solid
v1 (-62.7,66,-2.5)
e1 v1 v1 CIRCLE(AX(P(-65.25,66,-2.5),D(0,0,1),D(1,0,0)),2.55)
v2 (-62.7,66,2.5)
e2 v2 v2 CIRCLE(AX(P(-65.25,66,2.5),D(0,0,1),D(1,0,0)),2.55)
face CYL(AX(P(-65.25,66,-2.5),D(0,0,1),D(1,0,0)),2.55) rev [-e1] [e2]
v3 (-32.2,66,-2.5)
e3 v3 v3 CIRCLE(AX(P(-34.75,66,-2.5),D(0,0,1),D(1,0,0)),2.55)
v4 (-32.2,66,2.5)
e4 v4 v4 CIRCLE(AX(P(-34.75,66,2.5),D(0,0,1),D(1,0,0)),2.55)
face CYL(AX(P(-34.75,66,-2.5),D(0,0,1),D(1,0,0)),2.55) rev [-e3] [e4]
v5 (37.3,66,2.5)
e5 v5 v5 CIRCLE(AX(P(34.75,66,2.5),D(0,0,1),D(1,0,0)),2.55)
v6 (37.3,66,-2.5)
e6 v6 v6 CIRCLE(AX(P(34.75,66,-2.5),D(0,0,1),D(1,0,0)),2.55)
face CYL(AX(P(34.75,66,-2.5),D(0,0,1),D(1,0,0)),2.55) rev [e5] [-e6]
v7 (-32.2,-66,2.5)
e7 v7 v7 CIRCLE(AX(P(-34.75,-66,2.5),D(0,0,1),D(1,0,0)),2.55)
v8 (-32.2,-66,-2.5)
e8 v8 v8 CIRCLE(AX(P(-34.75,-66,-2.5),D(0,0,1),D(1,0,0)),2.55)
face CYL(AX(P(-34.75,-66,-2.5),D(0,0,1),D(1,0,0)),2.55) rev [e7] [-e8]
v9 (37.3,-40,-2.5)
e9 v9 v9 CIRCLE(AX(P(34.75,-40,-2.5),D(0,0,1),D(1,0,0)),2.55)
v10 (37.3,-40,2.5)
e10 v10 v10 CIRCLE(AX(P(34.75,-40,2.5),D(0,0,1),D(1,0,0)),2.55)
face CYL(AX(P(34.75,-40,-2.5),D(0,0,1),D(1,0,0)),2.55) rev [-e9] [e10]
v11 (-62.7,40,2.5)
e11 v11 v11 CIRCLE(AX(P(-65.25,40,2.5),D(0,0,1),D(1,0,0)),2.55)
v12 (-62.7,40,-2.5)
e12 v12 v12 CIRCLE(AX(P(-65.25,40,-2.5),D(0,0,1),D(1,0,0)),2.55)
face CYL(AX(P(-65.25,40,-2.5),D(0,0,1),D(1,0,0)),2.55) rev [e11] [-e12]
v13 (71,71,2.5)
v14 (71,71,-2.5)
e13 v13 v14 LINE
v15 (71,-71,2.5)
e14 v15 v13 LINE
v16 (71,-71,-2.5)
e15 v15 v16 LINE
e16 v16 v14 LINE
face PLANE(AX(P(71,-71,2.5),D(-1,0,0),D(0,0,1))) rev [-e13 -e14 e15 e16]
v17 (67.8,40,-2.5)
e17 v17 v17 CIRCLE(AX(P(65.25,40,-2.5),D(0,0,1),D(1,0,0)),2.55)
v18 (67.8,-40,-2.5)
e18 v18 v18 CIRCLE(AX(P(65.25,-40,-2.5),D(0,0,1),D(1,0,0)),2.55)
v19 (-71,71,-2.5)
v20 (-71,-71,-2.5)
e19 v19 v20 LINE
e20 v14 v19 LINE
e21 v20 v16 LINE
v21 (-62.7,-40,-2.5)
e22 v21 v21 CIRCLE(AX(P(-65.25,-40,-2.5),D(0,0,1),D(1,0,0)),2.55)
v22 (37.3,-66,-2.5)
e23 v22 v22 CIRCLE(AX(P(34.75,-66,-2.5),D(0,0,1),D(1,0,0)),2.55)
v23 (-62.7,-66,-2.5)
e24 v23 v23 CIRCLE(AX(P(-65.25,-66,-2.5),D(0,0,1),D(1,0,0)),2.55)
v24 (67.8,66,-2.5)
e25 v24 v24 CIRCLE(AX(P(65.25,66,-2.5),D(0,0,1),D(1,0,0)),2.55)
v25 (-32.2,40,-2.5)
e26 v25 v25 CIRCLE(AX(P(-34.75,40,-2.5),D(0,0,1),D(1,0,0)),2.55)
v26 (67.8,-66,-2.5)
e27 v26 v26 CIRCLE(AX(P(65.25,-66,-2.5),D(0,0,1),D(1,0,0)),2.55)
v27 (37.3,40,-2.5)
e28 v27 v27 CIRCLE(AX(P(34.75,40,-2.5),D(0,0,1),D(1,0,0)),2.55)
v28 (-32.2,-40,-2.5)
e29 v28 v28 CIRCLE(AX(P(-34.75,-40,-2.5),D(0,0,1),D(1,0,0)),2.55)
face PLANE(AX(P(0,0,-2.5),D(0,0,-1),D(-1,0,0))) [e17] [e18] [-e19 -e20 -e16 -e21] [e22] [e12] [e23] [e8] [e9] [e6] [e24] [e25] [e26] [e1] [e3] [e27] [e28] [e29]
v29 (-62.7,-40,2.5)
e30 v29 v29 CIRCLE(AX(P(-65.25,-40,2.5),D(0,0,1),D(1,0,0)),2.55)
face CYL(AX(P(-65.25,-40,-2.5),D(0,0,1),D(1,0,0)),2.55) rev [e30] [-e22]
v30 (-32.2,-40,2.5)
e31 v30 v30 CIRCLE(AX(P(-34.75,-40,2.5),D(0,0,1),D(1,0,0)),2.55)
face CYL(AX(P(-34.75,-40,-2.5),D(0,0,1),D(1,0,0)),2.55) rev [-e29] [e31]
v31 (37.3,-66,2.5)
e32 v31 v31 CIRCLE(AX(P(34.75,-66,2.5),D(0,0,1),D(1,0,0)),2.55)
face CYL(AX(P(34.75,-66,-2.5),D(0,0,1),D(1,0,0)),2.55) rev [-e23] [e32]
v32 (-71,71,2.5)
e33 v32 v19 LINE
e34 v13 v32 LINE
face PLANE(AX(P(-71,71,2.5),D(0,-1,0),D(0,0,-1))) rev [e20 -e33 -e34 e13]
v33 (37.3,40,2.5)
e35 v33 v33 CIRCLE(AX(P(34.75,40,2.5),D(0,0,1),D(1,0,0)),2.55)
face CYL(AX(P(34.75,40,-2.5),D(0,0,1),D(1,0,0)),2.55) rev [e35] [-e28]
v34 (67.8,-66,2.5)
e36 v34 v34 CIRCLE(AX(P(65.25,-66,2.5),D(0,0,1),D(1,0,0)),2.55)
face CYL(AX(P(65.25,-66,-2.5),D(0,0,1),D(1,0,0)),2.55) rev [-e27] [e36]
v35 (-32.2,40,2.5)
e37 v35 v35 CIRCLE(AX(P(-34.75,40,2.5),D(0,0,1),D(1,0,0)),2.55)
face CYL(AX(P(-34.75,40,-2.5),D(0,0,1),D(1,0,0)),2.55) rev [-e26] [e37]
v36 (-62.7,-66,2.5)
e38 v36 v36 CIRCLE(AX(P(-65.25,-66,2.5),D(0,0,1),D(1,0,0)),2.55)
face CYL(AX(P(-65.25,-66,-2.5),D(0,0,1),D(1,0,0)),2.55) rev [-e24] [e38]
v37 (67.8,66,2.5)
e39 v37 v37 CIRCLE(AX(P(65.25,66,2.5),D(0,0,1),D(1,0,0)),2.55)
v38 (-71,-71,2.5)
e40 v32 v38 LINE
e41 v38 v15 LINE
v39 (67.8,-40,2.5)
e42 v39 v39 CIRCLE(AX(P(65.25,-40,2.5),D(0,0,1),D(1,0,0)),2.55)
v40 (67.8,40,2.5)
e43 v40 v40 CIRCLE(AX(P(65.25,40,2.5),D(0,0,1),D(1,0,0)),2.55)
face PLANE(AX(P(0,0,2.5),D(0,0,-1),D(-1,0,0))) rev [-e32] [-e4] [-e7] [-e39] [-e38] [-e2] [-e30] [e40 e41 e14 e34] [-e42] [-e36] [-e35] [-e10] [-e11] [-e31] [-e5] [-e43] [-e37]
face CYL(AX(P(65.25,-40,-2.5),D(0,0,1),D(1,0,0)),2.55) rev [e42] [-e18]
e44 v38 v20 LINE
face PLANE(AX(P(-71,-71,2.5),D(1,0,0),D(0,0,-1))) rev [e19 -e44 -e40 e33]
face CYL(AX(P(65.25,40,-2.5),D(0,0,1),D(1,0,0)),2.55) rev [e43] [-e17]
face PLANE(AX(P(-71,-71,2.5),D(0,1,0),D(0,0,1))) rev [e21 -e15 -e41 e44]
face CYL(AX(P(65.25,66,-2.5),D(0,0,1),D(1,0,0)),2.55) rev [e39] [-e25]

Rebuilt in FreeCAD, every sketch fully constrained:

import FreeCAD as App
import Part
import Sketcher
from FreeCAD import Vector
Q = App.Units.Quantity


def add_polygon(sketch, points):
    """Adds a closed chain of lines whose ends are joined by coincident constraints."""
    first, n = sketch.GeometryCount, len(points)
    for a, b in zip(points, points[1:] + points[:1]):
        sketch.addGeometry(Part.LineSegment(App.Vector(*a, 0), App.Vector(*b, 0)), False)
    for i in range(n):
        sketch.addConstraint(Sketcher.Constraint("Coincident", first + i, 2, first + (i + 1) % n, 1))

doc = App.newDocument("Part")
body = doc.addObject("PartDesign::Body", "Body")

sketch1 = doc.addObject("Sketcher::SketchObject", "Sketch")
body.addObject(sketch1)
sketch1.AttachmentSupport = (doc.XY_Plane, [""])
sketch1.MapMode = "FlatFace"
add_polygon(sketch1, [(-71, 71), (-71, -71), (71, -71), (71, 71)])
sketch1.addConstraint(Sketcher.Constraint("Vertical", 0))
sketch1.addConstraint(Sketcher.Constraint("Horizontal", 1))
sketch1.addConstraint(Sketcher.Constraint("Vertical", 2))
sketch1.addConstraint(Sketcher.Constraint("Horizontal", 3))
sketch1.addConstraint(Sketcher.Constraint("Symmetric", 0, 2, 2, 2, -1, 1))
sketch1.addConstraint(Sketcher.Constraint("Equal", 3, 0))
sketch1.addConstraint(Sketcher.Constraint("DistanceX", 1, 1, 1, 2, Q("142 mm")))
pad1 = doc.addObject("PartDesign::Pad", "Pad")
body.addObject(pad1)
pad1.Profile = sketch1
pad1.Length = 5
pad1.Midplane = True

sketch2 = doc.addObject("Sketcher::SketchObject", "Sketch001")
body.addObject(sketch2)
sketch2.AttachmentSupport = (doc.XY_Plane, [""])
sketch2.MapMode = "FlatFace"
sketch2.AttachmentOffset = App.Placement(Vector(0, 0, 2.5), App.Rotation())
sketch2.addGeometry(Part.Circle(Vector(-65.2, 66, 0), Vector(0, 0, 1), 2.5), False)
sketch2.addGeometry(Part.Circle(Vector(-34.8, 66, 0), Vector(0, 0, 1), 2.5), False)
sketch2.addGeometry(Part.Circle(Vector(-34.8, 40, 0), Vector(0, 0, 1), 2.5), False)
sketch2.addGeometry(Part.Circle(Vector(-65.2, 40, 0), Vector(0, 0, 1), 2.5), False)
sketch2.addGeometry(Part.Circle(Vector(65.2, 66, 0), Vector(0, 0, 1), 2.5), False)
sketch2.addGeometry(Part.Circle(Vector(65.2, 40, 0), Vector(0, 0, 1), 2.5), False)
sketch2.addGeometry(Part.Circle(Vector(34.8, 40, 0), Vector(0, 0, 1), 2.5), False)
sketch2.addGeometry(Part.Circle(Vector(34.8, 66, 0), Vector(0, 0, 1), 2.5), False)
sketch2.addGeometry(Part.Circle(Vector(-65.2, -40, 0), Vector(0, 0, 1), 2.5), False)
sketch2.addGeometry(Part.Circle(Vector(-34.8, -40, 0), Vector(0, 0, 1), 2.5), False)
sketch2.addGeometry(Part.Circle(Vector(-34.8, -66, 0), Vector(0, 0, 1), 2.5), False)
sketch2.addGeometry(Part.Circle(Vector(-65.2, -66, 0), Vector(0, 0, 1), 2.5), False)
sketch2.addGeometry(Part.Circle(Vector(34.8, -40, 0), Vector(0, 0, 1), 2.5), False)
sketch2.addGeometry(Part.Circle(Vector(65.2, -40, 0), Vector(0, 0, 1), 2.5), False)
sketch2.addGeometry(Part.Circle(Vector(65.2, -66, 0), Vector(0, 0, 1), 2.5), False)
sketch2.addGeometry(Part.Circle(Vector(34.8, -66, 0), Vector(0, 0, 1), 2.5), False)
sketch2.addConstraint(Sketcher.Constraint("Equal", 0, 1))
sketch2.addConstraint(Sketcher.Constraint("Equal", 1, 2))
sketch2.addConstraint(Sketcher.Constraint("Equal", 2, 3))
sketch2.addConstraint(Sketcher.Constraint("Equal", 3, 4))
sketch2.addConstraint(Sketcher.Constraint("Equal", 4, 5))
sketch2.addConstraint(Sketcher.Constraint("Equal", 5, 6))
sketch2.addConstraint(Sketcher.Constraint("Equal", 6, 7))
sketch2.addConstraint(Sketcher.Constraint("Equal", 7, 8))
sketch2.addConstraint(Sketcher.Constraint("Equal", 8, 9))
sketch2.addConstraint(Sketcher.Constraint("Equal", 9, 10))
sketch2.addConstraint(Sketcher.Constraint("Equal", 10, 11))
sketch2.addConstraint(Sketcher.Constraint("Equal", 11, 12))
sketch2.addConstraint(Sketcher.Constraint("Equal", 12, 13))
sketch2.addConstraint(Sketcher.Constraint("Equal", 13, 14))
sketch2.addConstraint(Sketcher.Constraint("Equal", 14, 15))
sketch2.addConstraint(Sketcher.Constraint("Symmetric", 5, 3, 8, 3, -1, 1))
sketch2.addConstraint(Sketcher.Constraint("Symmetric", 6, 3, 9, 3, -1, 1))
sketch2.addConstraint(Sketcher.Constraint("Symmetric", 7, 3, 10, 3, -1, 1))
sketch2.addConstraint(Sketcher.Constraint("Symmetric", 4, 3, 11, 3, -1, 1))
sketch2.addConstraint(Sketcher.Constraint("Symmetric", 2, 3, 12, 3, -1, 1))
sketch2.addConstraint(Sketcher.Constraint("Symmetric", 3, 3, 13, 3, -1, 1))
sketch2.addConstraint(Sketcher.Constraint("Symmetric", 0, 3, 14, 3, -1, 1))
sketch2.addConstraint(Sketcher.Constraint("Symmetric", 1, 3, 15, 3, -1, 1))
sketch2.addConstraint(Sketcher.Constraint("Symmetric", 0, 3, 4, 3, -2))
sketch2.addConstraint(Sketcher.Constraint("Symmetric", 3, 3, 5, 3, -2))
sketch2.addConstraint(Sketcher.Constraint("Symmetric", 2, 3, 6, 3, -2))
sketch2.addConstraint(Sketcher.Constraint("Symmetric", 1, 3, 7, 3, -2))
sketch2.addConstraint(Sketcher.Constraint("Horizontal", 0, 3, 1, 3))
sketch2.addConstraint(Sketcher.Constraint("Horizontal", 2, 3, 3, 3))
sketch2.addConstraint(Sketcher.Constraint("Vertical", 1, 3, 2, 3))
sketch2.addConstraint(Sketcher.Constraint("Vertical", 0, 3, 3, 3))
sketch2.addConstraint(Sketcher.Constraint("Diameter", 0, Q("5.1 mm")))
sketch2.addConstraint(Sketcher.Constraint("DistanceY", -1, 1, 0, 3, Q("66 mm")))
sketch2.addConstraint(Sketcher.Constraint("DistanceY", -1, 1, 2, 3, Q("40 mm")))
sketch2.addConstraint(Sketcher.Constraint("DistanceX", 1, 3, 4, 3, Q("100 mm")))
sketch2.addConstraint(Sketcher.Constraint("DistanceX", 0, 3, 1, 3, Q("30.5 mm")))
pocket1 = doc.addObject("PartDesign::Pocket", "Pocket")
body.addObject(pocket1)
pocket1.Profile = sketch2
pocket1.Type = "ThroughAll"

doc.recompute()
